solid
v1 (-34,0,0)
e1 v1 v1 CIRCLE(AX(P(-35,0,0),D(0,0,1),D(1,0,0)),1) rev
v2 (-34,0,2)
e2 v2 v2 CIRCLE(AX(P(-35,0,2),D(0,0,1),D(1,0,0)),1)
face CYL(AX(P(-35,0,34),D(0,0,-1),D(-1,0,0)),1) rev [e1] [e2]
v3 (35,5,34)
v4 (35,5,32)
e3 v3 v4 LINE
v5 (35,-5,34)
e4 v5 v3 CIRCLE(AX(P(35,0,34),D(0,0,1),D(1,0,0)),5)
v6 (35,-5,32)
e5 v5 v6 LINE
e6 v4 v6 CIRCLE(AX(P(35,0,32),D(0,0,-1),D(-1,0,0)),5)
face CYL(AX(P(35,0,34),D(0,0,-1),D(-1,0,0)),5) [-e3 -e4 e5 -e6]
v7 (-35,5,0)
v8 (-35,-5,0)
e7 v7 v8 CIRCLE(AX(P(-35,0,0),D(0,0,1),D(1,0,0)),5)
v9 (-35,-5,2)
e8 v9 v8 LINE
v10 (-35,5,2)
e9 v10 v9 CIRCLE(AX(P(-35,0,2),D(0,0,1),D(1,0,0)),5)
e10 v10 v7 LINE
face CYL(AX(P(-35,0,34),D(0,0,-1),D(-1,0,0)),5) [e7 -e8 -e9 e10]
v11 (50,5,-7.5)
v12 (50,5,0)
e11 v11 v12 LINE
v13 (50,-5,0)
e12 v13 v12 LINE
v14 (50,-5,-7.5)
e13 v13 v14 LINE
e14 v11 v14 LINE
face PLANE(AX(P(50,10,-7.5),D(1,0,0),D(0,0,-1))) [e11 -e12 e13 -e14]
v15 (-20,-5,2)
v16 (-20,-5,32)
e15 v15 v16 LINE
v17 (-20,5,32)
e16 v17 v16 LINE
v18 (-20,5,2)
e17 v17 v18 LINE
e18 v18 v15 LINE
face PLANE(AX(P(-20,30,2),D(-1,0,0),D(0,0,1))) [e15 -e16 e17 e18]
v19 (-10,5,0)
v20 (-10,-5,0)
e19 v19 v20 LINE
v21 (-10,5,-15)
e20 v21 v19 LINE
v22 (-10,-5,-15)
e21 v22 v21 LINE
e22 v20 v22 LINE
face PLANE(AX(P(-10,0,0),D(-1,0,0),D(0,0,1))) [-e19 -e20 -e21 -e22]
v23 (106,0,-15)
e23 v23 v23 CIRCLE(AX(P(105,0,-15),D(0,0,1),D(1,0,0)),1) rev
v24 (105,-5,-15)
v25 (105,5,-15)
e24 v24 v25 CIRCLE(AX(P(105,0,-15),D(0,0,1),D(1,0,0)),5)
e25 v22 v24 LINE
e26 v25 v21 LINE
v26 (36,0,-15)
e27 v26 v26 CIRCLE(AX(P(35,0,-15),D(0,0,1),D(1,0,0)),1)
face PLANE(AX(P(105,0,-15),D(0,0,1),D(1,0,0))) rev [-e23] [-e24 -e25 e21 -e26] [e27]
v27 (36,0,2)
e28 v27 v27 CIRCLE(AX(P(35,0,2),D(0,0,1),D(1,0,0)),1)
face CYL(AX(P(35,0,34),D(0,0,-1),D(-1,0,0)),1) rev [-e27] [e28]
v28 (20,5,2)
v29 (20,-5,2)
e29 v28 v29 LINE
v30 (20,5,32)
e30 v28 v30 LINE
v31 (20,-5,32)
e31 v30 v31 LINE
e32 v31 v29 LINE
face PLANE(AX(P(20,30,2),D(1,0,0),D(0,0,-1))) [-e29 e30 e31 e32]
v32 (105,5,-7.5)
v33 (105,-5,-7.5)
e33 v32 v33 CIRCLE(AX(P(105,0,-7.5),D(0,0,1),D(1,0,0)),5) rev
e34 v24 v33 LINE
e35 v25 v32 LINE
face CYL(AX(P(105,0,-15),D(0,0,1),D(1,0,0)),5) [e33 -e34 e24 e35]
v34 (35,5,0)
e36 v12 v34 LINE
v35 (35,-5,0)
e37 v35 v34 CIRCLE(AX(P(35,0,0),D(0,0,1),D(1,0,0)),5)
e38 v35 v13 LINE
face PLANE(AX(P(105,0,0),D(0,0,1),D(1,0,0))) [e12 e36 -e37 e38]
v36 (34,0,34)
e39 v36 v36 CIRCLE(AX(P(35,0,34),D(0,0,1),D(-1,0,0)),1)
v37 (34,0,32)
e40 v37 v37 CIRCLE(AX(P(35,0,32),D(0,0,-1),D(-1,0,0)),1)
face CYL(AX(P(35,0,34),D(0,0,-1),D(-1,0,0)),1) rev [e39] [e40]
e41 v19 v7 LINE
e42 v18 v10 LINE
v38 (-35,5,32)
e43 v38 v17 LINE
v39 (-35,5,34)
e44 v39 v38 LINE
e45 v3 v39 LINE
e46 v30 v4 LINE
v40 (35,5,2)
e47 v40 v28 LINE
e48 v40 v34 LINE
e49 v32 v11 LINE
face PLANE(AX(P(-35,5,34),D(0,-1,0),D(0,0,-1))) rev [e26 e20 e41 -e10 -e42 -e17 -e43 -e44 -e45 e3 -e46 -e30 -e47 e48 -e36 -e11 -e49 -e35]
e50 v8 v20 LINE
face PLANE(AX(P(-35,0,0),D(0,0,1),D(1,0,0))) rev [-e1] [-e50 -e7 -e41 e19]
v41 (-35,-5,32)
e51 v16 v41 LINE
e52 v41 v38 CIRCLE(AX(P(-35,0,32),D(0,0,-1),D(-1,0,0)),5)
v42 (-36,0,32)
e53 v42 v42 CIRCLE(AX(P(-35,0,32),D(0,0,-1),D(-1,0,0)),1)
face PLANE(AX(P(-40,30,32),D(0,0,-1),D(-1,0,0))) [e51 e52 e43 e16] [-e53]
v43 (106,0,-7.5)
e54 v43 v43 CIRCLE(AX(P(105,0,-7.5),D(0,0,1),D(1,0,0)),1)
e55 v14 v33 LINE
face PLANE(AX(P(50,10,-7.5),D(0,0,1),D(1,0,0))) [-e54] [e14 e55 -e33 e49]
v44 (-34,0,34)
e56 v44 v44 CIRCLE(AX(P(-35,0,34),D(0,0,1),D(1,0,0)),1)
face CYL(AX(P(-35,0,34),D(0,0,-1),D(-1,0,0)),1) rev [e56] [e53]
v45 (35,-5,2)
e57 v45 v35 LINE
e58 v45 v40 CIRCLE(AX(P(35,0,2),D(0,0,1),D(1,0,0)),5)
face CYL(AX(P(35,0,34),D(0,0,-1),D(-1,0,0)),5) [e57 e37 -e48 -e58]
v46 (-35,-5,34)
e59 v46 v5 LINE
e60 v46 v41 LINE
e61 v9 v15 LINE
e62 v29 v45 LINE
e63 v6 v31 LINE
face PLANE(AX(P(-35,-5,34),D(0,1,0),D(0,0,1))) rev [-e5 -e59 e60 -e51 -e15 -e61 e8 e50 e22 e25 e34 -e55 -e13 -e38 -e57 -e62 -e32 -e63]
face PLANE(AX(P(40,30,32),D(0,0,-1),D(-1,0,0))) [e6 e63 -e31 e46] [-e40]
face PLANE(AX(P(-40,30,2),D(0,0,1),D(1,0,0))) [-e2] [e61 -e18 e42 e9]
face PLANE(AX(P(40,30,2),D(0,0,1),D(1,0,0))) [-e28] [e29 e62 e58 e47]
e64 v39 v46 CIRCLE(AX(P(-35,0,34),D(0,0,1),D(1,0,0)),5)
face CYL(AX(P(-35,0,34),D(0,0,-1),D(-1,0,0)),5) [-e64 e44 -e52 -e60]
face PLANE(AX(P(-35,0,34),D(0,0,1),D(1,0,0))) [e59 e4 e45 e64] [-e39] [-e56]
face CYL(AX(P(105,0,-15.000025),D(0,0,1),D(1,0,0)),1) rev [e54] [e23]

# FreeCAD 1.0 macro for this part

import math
import FreeCAD as App
import Part
import Sketcher
from FreeCAD import Vector

doc = App.newDocument("Part")
params = doc.addObject("Spreadsheet::Sheet", "Params")
for row, (alias, value) in enumerate([
    ("sketch1_radius", "5 mm"),
    ("sketch1_width", "70 mm"),
    ("pad1_length", "34 mm"),
    ("sketch2_diameter", "2 mm"),
    ("sketch3_width", "20 mm"),
    ("sketch3_height", "30 mm"),
    ("sketch4_radius", "5 mm"),
    ("sketch4_width", "105 mm"),
    ("pad2_length", "15 mm"),
    ("sketch5_diameter", "2 mm"),
    ("sketch6_width", "10 mm"),
    ("sketch6_height", "15 mm"),
    ("pad3_length", "10 mm"),
    ("sketch7_width", "70 mm"),
    ("sketch7_height", "10 mm"),
], start=1):
    params.set(f"A{row}", alias)
    params.set(f"B{row}", "=" + value)
    params.setAlias(f"B{row}", alias)

body = doc.addObject("PartDesign::Body", "Body")

sketch1 = body.newObject("Sketcher::SketchObject", "Sketch")
sketch1.AttachmentSupport = (doc.getObject("XY_Plane"), [""])
sketch1.MapMode = "FlatFace"
sketch1.addGeometry([
    Part.LineSegment(Vector(35, 5, 0), Vector(-35, 5, 0)),
    Part.ArcOfCircle(Part.Circle(Vector(-35, 0, 0), Vector(0, 0, 1), 5), math.radians(90), math.radians(270)),
    Part.LineSegment(Vector(-35, -5, 0), Vector(35, -5, 0)),
    Part.ArcOfCircle(Part.Circle(Vector(35, 0, 0), Vector(0, 0, 1), 5), math.radians(-90), math.radians(90)),
], False)
sketch1.addConstraint([
    Sketcher.Constraint("Tangent", 0, 2, 1, 1),
    Sketcher.Constraint("Tangent", 1, 2, 2, 1),
    Sketcher.Constraint("Tangent", 2, 2, 3, 1),
    Sketcher.Constraint("Tangent", 3, 2, 0, 1),
    Sketcher.Constraint("Horizontal", 0),
    Sketcher.Constraint("Horizontal", 2),
    Sketcher.Constraint("Symmetric", 1, 3, 3, 3, -1, 1),
    Sketcher.Constraint("Radius", 1, 5.0),
    Sketcher.Constraint("DistanceX", 0, 2, 0, 1, 70.0),
])
sketch1.setExpression("Constraints[7]", "Params.sketch1_radius")
sketch1.setExpression("Constraints[8]", "Params.sketch1_width")
pad1 = body.newObject("PartDesign::Pad", "Pad")
pad1.Profile = sketch1
pad1.setExpression("Length", "Params.pad1_length")

sketch2 = body.newObject("Sketcher::SketchObject", "Sketch001")
sketch2.AttachmentSupport = (doc.getObject("XY_Plane"), [""])
sketch2.MapMode = "FlatFace"
sketch2.addGeometry([
    Part.Circle(Vector(-35, 0, 0), Vector(0, 0, 1), 1),
    Part.Circle(Vector(35, 0, 0), Vector(0, 0, 1), 1),
], False)
sketch2.addConstraint([
    Sketcher.Constraint("Equal", 0, 1),
    Sketcher.Constraint("Symmetric", 0, 3, 1, 3, -1, 1),
    Sketcher.Constraint("PointOnObject", 0, 3, -1),
    Sketcher.Constraint("Diameter", 0, 2.0),
    Sketcher.Constraint("DistanceX", 0, 3, -1, 1, 35.0),
])
sketch2.setExpression("Constraints[3]", "Params.sketch2_diameter")
pocket1 = body.newObject("PartDesign::Pocket", "Pocket")
pocket1.Profile = sketch2
pocket1.Type = "ThroughAll"
pocket1.Midplane = True

sketch3 = body.newObject("Sketcher::SketchObject", "Sketch002")
sketch3.AttachmentSupport = (doc.getObject("XZ_Plane"), [""])
sketch3.MapMode = "FlatFace"
sketch3.addGeometry([
    Part.LineSegment(Vector(-40, 2, 0), Vector(-40, 32, 0)),
    Part.LineSegment(Vector(-40, 32, 0), Vector(-20, 32, 0)),
    Part.LineSegment(Vector(-20, 32, 0), Vector(-20, 2, 0)),
    Part.LineSegment(Vector(-20, 2, 0), Vector(-40, 2, 0)),
    Part.LineSegment(Vector(20, 2, 0), Vector(20, 32, 0)),
    Part.LineSegment(Vector(20, 32, 0), Vector(40, 32, 0)),
    Part.LineSegment(Vector(40, 32, 0), Vector(40, 2, 0)),
    Part.LineSegment(Vector(40, 2, 0), Vector(20, 2, 0)),
], False)
sketch3.addConstraint([
    Sketcher.Constraint("Coincident", 0, 2, 1, 1),
    Sketcher.Constraint("Coincident", 1, 2, 2, 1),
    Sketcher.Constraint("Coincident", 2, 2, 3, 1),
    Sketcher.Constraint("Coincident", 3, 2, 0, 1),
    Sketcher.Constraint("Coincident", 4, 2, 5, 1),
    Sketcher.Constraint("Coincident", 5, 2, 6, 1),
    Sketcher.Constraint("Coincident", 6, 2, 7, 1),
    Sketcher.Constraint("Coincident", 7, 2, 4, 1),
    Sketcher.Constraint("Vertical", 0),
    Sketcher.Constraint("Horizontal", 1),
    Sketcher.Constraint("Vertical", 2),
    Sketcher.Constraint("Horizontal", 3),
    Sketcher.Constraint("Vertical", 4),
    Sketcher.Constraint("Horizontal", 5),
    Sketcher.Constraint("Vertical", 6),
    Sketcher.Constraint("Horizontal", 7),
    Sketcher.Constraint("Symmetric", 1, 2, 4, 2, -2),
    Sketcher.Constraint("Symmetric", 3, 2, 6, 2, -2),
    Sketcher.Constraint("DistanceX", 1, 1, 1, 2, 20.0),
    Sketcher.Constraint("DistanceY", 0, 1, 0, 2, 30.0),
    Sketcher.Constraint("DistanceX", 0, 2, -1, 1, 40.0),
    Sketcher.Constraint("DistanceY", -1, 1, 0, 2, 32.0),
])
sketch3.setExpression("Constraints[18]", "Params.sketch3_width")
sketch3.setExpression("Constraints[19]", "Params.sketch3_height")
pocket2 = body.newObject("PartDesign::Pocket", "Pocket001")
pocket2.Profile = sketch3
pocket2.Type = "ThroughAll"
pocket2.Midplane = True

sketch4 = body.newObject("Sketcher::SketchObject", "Sketch003")
sketch4.AttachmentSupport = (doc.getObject("XY_Plane"), [""])
sketch4.MapMode = "FlatFace"
sketch4.addGeometry([
    Part.LineSegment(Vector(105, 5, 0), Vector(0, 5, 0)),
    Part.LineSegment(Vector(0, 5, 0), Vector(0, -5, 0)),
    Part.LineSegment(Vector(0, -5, 0), Vector(105, -5, 0)),
    Part.ArcOfCircle(Part.Circle(Vector(105, 0, 0), Vector(0, 0, 1), 5), math.radians(-90), math.radians(90)),
], False)
sketch4.addConstraint([
    Sketcher.Constraint("Coincident", 0, 2, 1, 1),
    Sketcher.Constraint("Coincident", 1, 2, 2, 1),
    Sketcher.Constraint("Tangent", 2, 2, 3, 1),
    Sketcher.Constraint("Tangent", 3, 2, 0, 1),
    Sketcher.Constraint("Horizontal", 0),
    Sketcher.Constraint("Vertical", 1),
    Sketcher.Constraint("Horizontal", 2),
    Sketcher.Constraint("Symmetric", 0, 2, 1, 2, -1, 1),
    Sketcher.Constraint("Radius", 3, 5.0),
    Sketcher.Constraint("DistanceX", 0, 2, 0, 1, 105.0),
])
sketch4.setExpression("Constraints[8]", "Params.sketch4_radius")
sketch4.setExpression("Constraints[9]", "Params.sketch4_width")
pad2 = body.newObject("PartDesign::Pad", "Pad001")
pad2.Profile = sketch4
pad2.setExpression("Length", "Params.pad2_length")
pad2.Reversed = True

sketch5 = body.newObject("Sketcher::SketchObject", "Sketch004")
sketch5.AttachmentSupport = (doc.getObject("XY_Plane"), [""])
sketch5.MapMode = "FlatFace"
sketch5.addGeometry([
    Part.Circle(Vector(35, 0, 0), Vector(0, 0, 1), 1),
    Part.Circle(Vector(105, 0, 0), Vector(0, 0, 1), 1),
], False)
sketch5.addConstraint([
    Sketcher.Constraint("Equal", 0, 1),
    Sketcher.Constraint("PointOnObject", 0, 3, -1),
    Sketcher.Constraint("PointOnObject", 1, 3, -1),
    Sketcher.Constraint("Diameter", 0, 2.0),
    Sketcher.Constraint("DistanceX", -1, 1, 0, 3, 35.0),
    Sketcher.Constraint("DistanceX", -1, 1, 1, 3, 105.0),
])
sketch5.setExpression("Constraints[3]", "Params.sketch5_diameter")
pocket3 = body.newObject("PartDesign::Pocket", "Pocket002")
pocket3.Profile = sketch5
pocket3.Type = "ThroughAll"

sketch6 = body.newObject("Sketcher::SketchObject", "Sketch005")
sketch6.AttachmentSupport = (doc.getObject("YZ_Plane"), [""])
sketch6.MapMode = "FlatFace"
sketch6.addGeometry([
    Part.LineSegment(Vector(5, 0, 0), Vector(-5, 0, 0)),
    Part.LineSegment(Vector(-5, 0, 0), Vector(-5, -15, 0)),
    Part.LineSegment(Vector(-5, -15, 0), Vector(5, -15, 0)),
    Part.LineSegment(Vector(5, -15, 0), Vector(5, 0, 0)),
], False)
sketch6.addConstraint([
    Sketcher.Constraint("Coincident", 0, 2, 1, 1),
    Sketcher.Constraint("Coincident", 1, 2, 2, 1),
    Sketcher.Constraint("Coincident", 2, 2, 3, 1),
    Sketcher.Constraint("Coincident", 3, 2, 0, 1),
    Sketcher.Constraint("Horizontal", 0),
    Sketcher.Constraint("Vertical", 1),
    Sketcher.Constraint("Horizontal", 2),
    Sketcher.Constraint("Vertical", 3),
    Sketcher.Constraint("Symmetric", 0, 2, 3, 2, -1, 1),
    Sketcher.Constraint("DistanceX", 0, 2, 0, 1, 10.0),
    Sketcher.Constraint("DistanceY", 1, 2, 1, 1, 15.0),
])
sketch6.setExpression("Constraints[9]", "Params.sketch6_width")
sketch6.setExpression("Constraints[10]", "Params.sketch6_height")
pad3 = body.newObject("PartDesign::Pad", "Pad002")
pad3.Profile = sketch6
pad3.setExpression("Length", "Params.pad3_length")
pad3.Reversed = True

sketch7 = body.newObject("Sketcher::SketchObject", "Sketch006")
sketch7.AttachmentSupport = (doc.getObject("XZ_Plane"), [""])
sketch7.MapMode = "FlatFace"
sketch7.addGeometry([
    Part.LineSegment(Vector(50, -7.5, 0), Vector(50, 2.5, 0)),
    Part.LineSegment(Vector(50, 2.5, 0), Vector(120, 2.5, 0)),
    Part.LineSegment(Vector(120, 2.5, 0), Vector(120, -7.5, 0)),
    Part.LineSegment(Vector(120, -7.5, 0), Vector(50, -7.5, 0)),
], False)
sketch7.addConstraint([
    Sketcher.Constraint("Coincident", 0, 2, 1, 1),
    Sketcher.Constraint("Coincident", 1, 2, 2, 1),
    Sketcher.Constraint("Coincident", 2, 2, 3, 1),
    Sketcher.Constraint("Coincident", 3, 2, 0, 1),
    Sketcher.Constraint("Vertical", 0),
    Sketcher.Constraint("Horizontal", 1),
    Sketcher.Constraint("Vertical", 2),
    Sketcher.Constraint("Horizontal", 3),
    Sketcher.Constraint("DistanceX", 1, 1, 1, 2, 70.0),
    Sketcher.Constraint("DistanceY", 0, 1, 0, 2, 10.0),
    Sketcher.Constraint("DistanceX", -1, 1, 0, 2, 50.0),
    Sketcher.Constraint("DistanceY", -1, 1, 0, 2, 2.5),
])
sketch7.setExpression("Constraints[8]", "Params.sketch7_width")
sketch7.setExpression("Constraints[9]", "Params.sketch7_height")
pocket4 = body.newObject("PartDesign::Pocket", "Pocket003")
pocket4.Profile = sketch7
pocket4.Type = "ThroughAll"
pocket4.Midplane = True

doc.recompute()
